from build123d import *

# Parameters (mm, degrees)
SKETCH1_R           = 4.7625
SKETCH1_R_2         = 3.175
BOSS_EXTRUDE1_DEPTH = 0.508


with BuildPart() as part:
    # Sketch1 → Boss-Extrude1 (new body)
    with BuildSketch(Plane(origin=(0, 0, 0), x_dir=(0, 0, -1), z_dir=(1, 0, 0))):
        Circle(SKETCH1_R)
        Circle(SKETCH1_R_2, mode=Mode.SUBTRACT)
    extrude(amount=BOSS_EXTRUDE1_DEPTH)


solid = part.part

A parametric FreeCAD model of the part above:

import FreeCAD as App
import Part
import Sketcher
from FreeCAD import Vector
Q = App.Units.Quantity

doc = App.newDocument("Part")
body = doc.addObject("PartDesign::Body", "Body")

# Sketch on YZ plane
sketch1 = body.newObject("Sketcher::SketchObject", "Sketch")
sketch1.AttachmentSupport = (doc.getObject("YZ_Plane"), [""])
sketch1.MapMode = "FlatFace"
sketch1.addGeometry([
    Part.Circle(Vector(0, 0, 0), Vector(0, 0, 1), 4.8),
    Part.Circle(Vector(0, 0, 0), Vector(0, 0, 1), 3.2),
], False)
sketch1.addConstraint([
    Sketcher.Constraint("Coincident", 0, 3, -1, 1),
    Sketcher.Constraint("Coincident", 1, 3, -1, 1),
    Sketcher.Constraint("Diameter", 1, Q("0.25 in")),
    Sketcher.Constraint("Diameter", 0, Q("0.375 in")),
])
pad1 = body.newObject("PartDesign::Pad", "Pad")
pad1.Profile = sketch1
pad1.Length = Q("0.02 in")

doc.recompute()
